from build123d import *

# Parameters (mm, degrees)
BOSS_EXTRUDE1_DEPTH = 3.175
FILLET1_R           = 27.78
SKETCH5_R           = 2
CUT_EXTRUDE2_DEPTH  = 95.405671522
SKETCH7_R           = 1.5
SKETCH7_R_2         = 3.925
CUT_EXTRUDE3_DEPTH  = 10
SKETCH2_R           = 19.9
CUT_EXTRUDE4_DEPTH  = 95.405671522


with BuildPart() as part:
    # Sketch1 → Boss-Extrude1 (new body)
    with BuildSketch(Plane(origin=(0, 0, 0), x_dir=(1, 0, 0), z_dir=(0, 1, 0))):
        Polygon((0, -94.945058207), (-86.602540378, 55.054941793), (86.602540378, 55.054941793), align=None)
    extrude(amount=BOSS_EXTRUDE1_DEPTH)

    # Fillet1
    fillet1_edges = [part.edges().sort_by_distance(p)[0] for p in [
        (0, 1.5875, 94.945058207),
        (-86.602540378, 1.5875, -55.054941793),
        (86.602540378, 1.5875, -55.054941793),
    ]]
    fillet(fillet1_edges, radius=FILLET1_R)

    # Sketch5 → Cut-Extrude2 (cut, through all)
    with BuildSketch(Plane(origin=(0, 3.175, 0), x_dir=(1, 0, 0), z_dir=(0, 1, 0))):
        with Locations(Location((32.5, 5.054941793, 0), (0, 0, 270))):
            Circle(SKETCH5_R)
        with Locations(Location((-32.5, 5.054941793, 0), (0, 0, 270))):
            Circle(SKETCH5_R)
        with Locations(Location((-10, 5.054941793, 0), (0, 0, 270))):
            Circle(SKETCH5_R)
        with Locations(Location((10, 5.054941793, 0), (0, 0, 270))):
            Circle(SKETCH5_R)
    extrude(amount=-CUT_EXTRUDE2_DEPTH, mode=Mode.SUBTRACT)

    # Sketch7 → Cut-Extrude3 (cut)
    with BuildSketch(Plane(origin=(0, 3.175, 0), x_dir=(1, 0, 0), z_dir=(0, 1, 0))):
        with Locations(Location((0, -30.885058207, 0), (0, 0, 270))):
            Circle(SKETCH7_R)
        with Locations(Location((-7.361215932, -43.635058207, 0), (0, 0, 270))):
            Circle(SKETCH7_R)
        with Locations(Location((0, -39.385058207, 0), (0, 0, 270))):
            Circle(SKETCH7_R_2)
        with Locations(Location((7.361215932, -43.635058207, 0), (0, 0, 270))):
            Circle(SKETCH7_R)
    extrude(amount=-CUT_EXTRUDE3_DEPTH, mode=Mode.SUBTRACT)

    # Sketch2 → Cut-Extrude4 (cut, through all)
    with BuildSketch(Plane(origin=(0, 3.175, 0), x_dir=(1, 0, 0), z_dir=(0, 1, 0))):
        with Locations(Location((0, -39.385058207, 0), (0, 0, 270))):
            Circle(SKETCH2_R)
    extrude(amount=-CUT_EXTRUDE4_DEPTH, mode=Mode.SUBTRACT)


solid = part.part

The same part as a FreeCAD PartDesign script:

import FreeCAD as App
import Part
import Sketcher
Q = App.Units.Quantity


def edges_at(feature, points):
    """Names of the edges that pass closest to the given points."""
    edges = feature.Shape.Edges
    near = lambda p: min(range(len(edges)), key=lambda i: edges[i].distToShape(Part.Vertex(*p))[0])
    return sorted({f"Edge{near(p) + 1}" for p in points})


def add_polygon(sketch, points):
    """Adds a closed chain of lines whose ends are joined by coincident constraints."""
    first, n = sketch.GeometryCount, len(points)
    for a, b in zip(points, points[1:] + points[:1]):
        sketch.addGeometry(Part.LineSegment(App.Vector(*a, 0), App.Vector(*b, 0)), False)
    for i in range(n):
        sketch.addConstraint(Sketcher.Constraint("Coincident", first + i, 2, first + (i + 1) % n, 1))

doc = App.newDocument("Part")
body = doc.addObject("PartDesign::Body", "Body")

sketch1 = body.newObject("Sketcher::SketchObject", "Sketch")
sketch1.AttachmentSupport = (doc.getObject("XZ_Plane"), [""])
sketch1.MapMode = "FlatFace"
add_polygon(sketch1, [(-87, -55), (0, 95), (87, -55)])
sketch1.addConstraint(Sketcher.Constraint("Horizontal", 2))
sketch1.addConstraint(Sketcher.Constraint("PointOnObject", 0, 2, -2))
sketch1.addConstraint(Sketcher.Constraint("Equal", 0, 1))
sketch1.addConstraint(Sketcher.Constraint("Angle", 0, Q("60 deg")))
sketch1.addConstraint(Sketcher.Constraint("DistanceY", 1, 2, 0, 2, Q("150 mm")))
sketch1.addConstraint(Sketcher.Constraint("DistanceY", -1, 1, 0, 2, Q("94.945058 mm")))
pad1 = body.newObject("PartDesign::Pad", "Pad")
pad1.Profile = sketch1
pad1.Length = 3.175
pad1.Reversed = True
doc.recompute()

fillet = body.newObject("PartDesign::Fillet", "Fillet")
fillet.Base = (pad1, edges_at(pad1, [(0, 1.587, 94.945), (-86.603, 1.587, -55.055), (86.603, 1.587, -55.055)]))
fillet.Radius = 27.78

sketch2 = body.newObject("Sketcher::SketchObject", "Sketch001")
sketch2.AttachmentSupport = (doc.getObject("XZ_Plane"), [""])
sketch2.MapMode = "FlatFace"
sketch2.AttachmentOffset = App.Placement(App.Vector(0, 0, -3.175), App.Rotation())
sketch2.addGeometry(Part.Circle(App.Vector(32.5, -5.1, 0), App.Vector(0, 0, 1), 2), False)
sketch2.addGeometry(Part.Circle(App.Vector(-32.5, -5.1, 0), App.Vector(0, 0, 1), 2), False)
sketch2.addGeometry(Part.Circle(App.Vector(-10, -5.1, 0), App.Vector(0, 0, 1), 2), False)
sketch2.addGeometry(Part.Circle(App.Vector(10, -5.1, 0), App.Vector(0, 0, 1), 2), False)
sketch2.addConstraint(Sketcher.Constraint("Equal", 0, 1))
sketch2.addConstraint(Sketcher.Constraint("Equal", 1, 2))
sketch2.addConstraint(Sketcher.Constraint("Equal", 2, 3))
sketch2.addConstraint(Sketcher.Constraint("Symmetric", 0, 3, 1, 3, -2))
sketch2.addConstraint(Sketcher.Constraint("Symmetric", 2, 3, 3, 3, -2))
sketch2.addConstraint(Sketcher.Constraint("Horizontal", 1, 3, 2, 3))
sketch2.addConstraint(Sketcher.Constraint("Diameter", 0, Q("4 mm")))
sketch2.addConstraint(Sketcher.Constraint("DistanceX", 2, 3, -1, 1, Q("10 mm")))
sketch2.addConstraint(Sketcher.Constraint("DistanceX", 1, 3, 0, 3, Q("65 mm")))
sketch2.addConstraint(Sketcher.Constraint("DistanceY", 0, 3, -1, 1, Q("5.054942 mm")))
pocket1 = body.newObject("PartDesign::Pocket", "Pocket")
pocket1.Profile = sketch2
pocket1.Type = "ThroughAll"
pocket1.Reversed = True

sketch3 = body.newObject("Sketcher::SketchObject", "Sketch002")
sketch3.AttachmentSupport = (doc.getObject("XZ_Plane"), [""])
sketch3.MapMode = "FlatFace"
sketch3.AttachmentOffset = App.Placement(App.Vector(0, 0, -3.175), App.Rotation())
sketch3.addGeometry(Part.Circle(App.Vector(0, 30.9, 0), App.Vector(0, 0, 1), 1.5), False)
sketch3.addGeometry(Part.Circle(App.Vector(-7.4, 43.6, 0), App.Vector(0, 0, 1), 1.5), False)
sketch3.addGeometry(Part.Circle(App.Vector(0, 39.4, 0), App.Vector(0, 0, 1), 3.9), False)
sketch3.addGeometry(Part.Circle(App.Vector(7.4, 43.6, 0), App.Vector(0, 0, 1), 1.5), False)
sketch3.addConstraint(Sketcher.Constraint("Equal", 0, 1))
sketch3.addConstraint(Sketcher.Constraint("Equal", 1, 3))
sketch3.addConstraint(Sketcher.Constraint("Symmetric", 1, 3, 3, 3, -2))
sketch3.addConstraint(Sketcher.Constraint("PointOnObject", 0, 3, -2))
sketch3.addConstraint(Sketcher.Constraint("PointOnObject", 2, 3, -2))
sketch3.addConstraint(Sketcher.Constraint("Diameter", 0, Q("3 mm")))
sketch3.addConstraint(Sketcher.Constraint("Diameter", 2, Q("7.85 mm")))
sketch3.addConstraint(Sketcher.Constraint("DistanceY", 0, 3, 2, 3, Q("8.5 mm")))
sketch3.addConstraint(Sketcher.Constraint("DistanceY", 0, 3, 1, 3, Q("12.75 mm")))
sketch3.addConstraint(Sketcher.Constraint("DistanceY", -1, 1, 0, 3, Q("30.885058 mm")))
sketch3.addConstraint(Sketcher.Constraint("DistanceX", 1, 3, 3, 3, Q("14.722432 mm")))
pocket2 = body.newObject("PartDesign::Pocket", "Pocket001")
pocket2.Profile = sketch3
pocket2.Length = 10
pocket2.Reversed = True

sketch4 = body.newObject("Sketcher::SketchObject", "Sketch003")
sketch4.AttachmentSupport = (doc.getObject("XZ_Plane"), [""])
sketch4.MapMode = "FlatFace"
sketch4.AttachmentOffset = App.Placement(App.Vector(0, 0, -3.175), App.Rotation())
sketch4.addGeometry(Part.Circle(App.Vector(0, 39, 0), App.Vector(0, 0, 1), 20), False)
sketch4.addConstraint(Sketcher.Constraint("PointOnObject", 0, 3, -2))
sketch4.addConstraint(Sketcher.Constraint("Diameter", 0, Q("39.8 mm")))
sketch4.addConstraint(Sketcher.Constraint("DistanceY", -1, 1, 0, 3, Q("39.385058 mm")))
pocket3 = body.newObject("PartDesign::Pocket", "Pocket002")
pocket3.Profile = sketch4
pocket3.Type = "ThroughAll"
pocket3.Reversed = True

doc.recompute()
